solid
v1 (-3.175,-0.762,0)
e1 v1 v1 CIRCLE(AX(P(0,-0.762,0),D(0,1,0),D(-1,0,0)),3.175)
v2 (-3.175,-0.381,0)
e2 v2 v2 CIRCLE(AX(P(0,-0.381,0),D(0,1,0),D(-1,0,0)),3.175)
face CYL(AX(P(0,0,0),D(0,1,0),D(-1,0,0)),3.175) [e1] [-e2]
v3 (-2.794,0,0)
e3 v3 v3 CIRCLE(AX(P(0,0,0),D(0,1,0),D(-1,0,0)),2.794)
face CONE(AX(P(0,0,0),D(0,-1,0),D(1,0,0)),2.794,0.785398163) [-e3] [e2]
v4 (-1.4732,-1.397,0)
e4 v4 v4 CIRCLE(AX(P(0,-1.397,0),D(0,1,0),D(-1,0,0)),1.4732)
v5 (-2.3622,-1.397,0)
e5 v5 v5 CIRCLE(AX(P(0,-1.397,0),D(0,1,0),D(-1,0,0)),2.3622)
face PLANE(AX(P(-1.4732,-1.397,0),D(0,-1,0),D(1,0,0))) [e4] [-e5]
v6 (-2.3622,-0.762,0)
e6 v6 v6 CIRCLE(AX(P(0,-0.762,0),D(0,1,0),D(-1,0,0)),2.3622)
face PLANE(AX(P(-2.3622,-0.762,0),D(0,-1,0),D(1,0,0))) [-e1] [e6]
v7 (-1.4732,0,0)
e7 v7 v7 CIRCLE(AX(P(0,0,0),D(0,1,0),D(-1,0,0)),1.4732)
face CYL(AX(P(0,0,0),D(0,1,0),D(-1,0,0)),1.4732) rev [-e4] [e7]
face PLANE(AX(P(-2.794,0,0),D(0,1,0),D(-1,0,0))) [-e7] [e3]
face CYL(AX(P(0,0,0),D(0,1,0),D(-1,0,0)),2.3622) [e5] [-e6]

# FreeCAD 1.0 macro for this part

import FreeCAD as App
import Part
import Sketcher

V = App.Vector
Q = App.Units.Quantity


def add_polygon(sketch, points):
    """Adds a closed chain of lines whose ends are joined by coincident constraints."""
    first, n = sketch.GeometryCount, len(points)
    for a, b in zip(points, points[1:] + points[:1]):
        sketch.addGeometry(Part.LineSegment(App.Vector(*a, 0), App.Vector(*b, 0)), False)
    for i in range(n):
        sketch.addConstraint(Sketcher.Constraint("Coincident", first + i, 2, first + (i + 1) % n, 1))

doc = App.newDocument("Part")
body = doc.addObject("PartDesign::Body", "Body")

sketch1 = body.newObject("Sketcher::SketchObject", "Sketch")
sketch1.AttachmentSupport = (doc.getObject("XY_Plane"), [""])
sketch1.MapMode = "FlatFace"
add_polygon(sketch1, [(-1.4732, -1.397), (-1.4732, 0), (-2.794, 0), (-3.175, -0.381), (-3.175, -0.762), (-2.3622, -0.762), (-2.3622, -1.397)])
sketch1.addConstraint([
    Sketcher.Constraint("Vertical", 0),
    Sketcher.Constraint("Horizontal", 1),
    Sketcher.Constraint("Vertical", 3),
    Sketcher.Constraint("Horizontal", 4),
    Sketcher.Constraint("Vertical", 5),
    Sketcher.Constraint("Horizontal", 6),
    Sketcher.Constraint("PointOnObject", 0, 2, -1),
    Sketcher.Constraint("Angle", 2, Q("-135 deg")),
    Sketcher.Constraint("DistanceX", 1, 2, 1, 1, Q("0.052 in")),
    Sketcher.Constraint("DistanceX", 4, 1, 4, 2, Q("0.032 in")),
    Sketcher.Constraint("DistanceX", 6, 1, 6, 2, Q("0.035 in")),
    Sketcher.Constraint("DistanceY", 0, 1, 0, 2, Q("0.055 in")),
    Sketcher.Constraint("DistanceY", 3, 2, 3, 1, Q("0.015 in")),
    Sketcher.Constraint("DistanceX", 1, 2, -1, 1, Q("0.11 in")),
])
revolution = body.newObject("PartDesign::Revolution", "Revolution")
revolution.Profile = sketch1
revolution.ReferenceAxis = (sketch1, ["V_Axis"])
revolution.Angle = 360

doc.recompute()
